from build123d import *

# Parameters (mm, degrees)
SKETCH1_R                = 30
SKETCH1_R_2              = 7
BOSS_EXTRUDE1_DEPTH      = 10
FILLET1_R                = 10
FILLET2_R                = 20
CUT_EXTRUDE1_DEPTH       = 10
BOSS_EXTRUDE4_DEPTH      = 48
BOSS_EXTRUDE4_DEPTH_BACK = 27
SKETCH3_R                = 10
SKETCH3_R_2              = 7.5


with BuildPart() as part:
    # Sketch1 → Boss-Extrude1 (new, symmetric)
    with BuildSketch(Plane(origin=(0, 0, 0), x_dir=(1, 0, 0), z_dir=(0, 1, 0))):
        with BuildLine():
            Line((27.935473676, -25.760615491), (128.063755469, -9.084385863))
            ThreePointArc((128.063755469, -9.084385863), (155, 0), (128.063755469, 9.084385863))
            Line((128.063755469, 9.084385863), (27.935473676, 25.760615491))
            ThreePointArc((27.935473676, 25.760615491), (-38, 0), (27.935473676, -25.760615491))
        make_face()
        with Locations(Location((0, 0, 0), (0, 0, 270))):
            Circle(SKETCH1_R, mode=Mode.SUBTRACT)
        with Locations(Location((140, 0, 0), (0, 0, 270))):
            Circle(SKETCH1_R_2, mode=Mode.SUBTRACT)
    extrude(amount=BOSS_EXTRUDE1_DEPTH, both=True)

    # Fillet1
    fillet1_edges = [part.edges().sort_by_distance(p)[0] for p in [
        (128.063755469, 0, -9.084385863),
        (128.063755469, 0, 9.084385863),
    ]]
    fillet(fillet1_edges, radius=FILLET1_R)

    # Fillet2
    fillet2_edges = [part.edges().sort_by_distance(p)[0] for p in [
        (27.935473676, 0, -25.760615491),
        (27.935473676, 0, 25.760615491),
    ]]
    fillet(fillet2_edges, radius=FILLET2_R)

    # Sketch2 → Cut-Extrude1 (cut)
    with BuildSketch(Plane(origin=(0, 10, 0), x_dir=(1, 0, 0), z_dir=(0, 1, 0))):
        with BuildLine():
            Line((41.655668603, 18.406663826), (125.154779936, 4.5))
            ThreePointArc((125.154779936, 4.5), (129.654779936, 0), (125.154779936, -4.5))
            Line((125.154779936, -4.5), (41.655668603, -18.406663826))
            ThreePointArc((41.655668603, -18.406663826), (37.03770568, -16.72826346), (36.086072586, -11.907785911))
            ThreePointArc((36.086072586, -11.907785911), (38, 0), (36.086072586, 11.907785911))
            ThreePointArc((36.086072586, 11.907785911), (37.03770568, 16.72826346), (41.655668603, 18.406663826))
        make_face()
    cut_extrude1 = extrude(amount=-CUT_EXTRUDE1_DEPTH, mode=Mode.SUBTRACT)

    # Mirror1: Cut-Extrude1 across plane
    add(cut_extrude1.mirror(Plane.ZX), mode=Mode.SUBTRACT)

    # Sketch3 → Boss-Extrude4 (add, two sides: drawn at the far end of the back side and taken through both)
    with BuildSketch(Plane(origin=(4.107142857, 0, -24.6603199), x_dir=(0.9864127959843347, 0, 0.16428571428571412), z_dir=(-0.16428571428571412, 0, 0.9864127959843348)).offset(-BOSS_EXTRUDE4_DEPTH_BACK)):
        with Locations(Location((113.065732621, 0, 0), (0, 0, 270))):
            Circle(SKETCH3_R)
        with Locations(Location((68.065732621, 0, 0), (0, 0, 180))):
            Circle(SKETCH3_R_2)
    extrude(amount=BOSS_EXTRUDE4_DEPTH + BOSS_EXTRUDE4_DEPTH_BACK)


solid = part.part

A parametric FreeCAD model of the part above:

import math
import FreeCAD as App
import Part
import Sketcher

V = App.Vector
Q = App.Units.Quantity


def edges_at(feature, points):
    """Names of the edges that pass closest to the given points."""
    edges = feature.Shape.Edges
    near = lambda p: min(range(len(edges)), key=lambda i: edges[i].distToShape(Part.Vertex(*p))[0])
    return sorted({f"Edge{near(p) + 1}" for p in points})

doc = App.newDocument("Part")
body = doc.addObject("PartDesign::Body", "Body")

sketch1 = doc.addObject("Sketcher::SketchObject", "Sketch")
body.addObject(sketch1)
sketch1.AttachmentSupport = (doc.XZ_Plane, [""])
sketch1.MapMode = "FlatFace"
sketch1.addGeometry([
    Part.LineSegment(V(28, 26, 0), V(128, 9, 0)),
    Part.ArcOfCircle(Part.Circle(V(140, 0, 0), V(0, 0, 1), 15), math.radians(-143), math.radians(143)),
    Part.LineSegment(V(128, -9, 0), V(28, -26, 0)),
    Part.ArcOfCircle(Part.Circle(V(0, 0, 0), V(0, 0, 1), 38), math.radians(43), math.radians(317)),
    Part.Circle(V(0, 0, 0), V(0, 0, 1), 30),
    Part.Circle(V(140, 0, 0), V(0, 0, 1), 7),
], False)
sketch1.addConstraint([
    Sketcher.Constraint("Coincident", 0, 2, 1, 2),
    Sketcher.Constraint("Coincident", 1, 1, 2, 1),
    Sketcher.Constraint("Coincident", 2, 2, 3, 2),
    Sketcher.Constraint("Coincident", 3, 1, 0, 1),
    Sketcher.Constraint("Coincident", 3, 3, -1, 1),
    Sketcher.Constraint("Coincident", 4, 3, -1, 1),
    Sketcher.Constraint("Coincident", 5, 3, 1, 3),
    Sketcher.Constraint("Symmetric", 0, 2, 1, 1, -1),
    Sketcher.Constraint("Vertical", 2, 2, 3, 1),
    Sketcher.Constraint("Diameter", 4, Q("60 mm")),
    Sketcher.Constraint("Diameter", 5, Q("14 mm")),
    Sketcher.Constraint("Radius", 1, Q("15 mm")),
    Sketcher.Constraint("Radius", 3, Q("38 mm")),
    Sketcher.Constraint("DistanceX", -1, 1, 1, 3, Q("140 mm")),
    Sketcher.Constraint("DistanceY", 2, 2, 0, 2, Q("34.845001 mm")),
    Sketcher.Constraint("DistanceY", 1, 1, 0, 2, Q("18.168772 mm")),
])
pad1 = doc.addObject("PartDesign::Pad", "Pad")
body.addObject(pad1)
pad1.Profile = sketch1
pad1.Length = 20
pad1.Midplane = True
doc.recompute()

fillet = doc.addObject("PartDesign::Fillet", "Fillet")
body.addObject(fillet)
fillet.Base = (pad1, edges_at(pad1, [(128.064, 0, -9.084), (128.064, 0, 9.084)]))
fillet.Radius = 10
doc.recompute()

fillet2 = doc.addObject("PartDesign::Fillet", "Fillet001")
body.addObject(fillet2)
fillet2.Base = (fillet, edges_at(fillet, [(27.935, 0, -25.761), (27.935, 0, 25.761)]))
fillet2.Radius = 20

sketch2 = doc.addObject("Sketcher::SketchObject", "Sketch001")
body.addObject(sketch2)
sketch2.AttachmentSupport = (doc.XZ_Plane, [""])
sketch2.MapMode = "FlatFace"
sketch2.AttachmentOffset = App.Placement(V(0, 0, -10), App.Rotation())
sketch2.addGeometry([
    Part.LineSegment(V(125.2, -4.5, 0), V(41.7, -18.4, 0)),
    Part.ArcOfCircle(Part.Circle(V(40.8, -13.5, 0), V(0, 0, 1), 5), math.radians(162), math.radians(279)),
    Part.ArcOfCircle(Part.Circle(V(0, 0, 0), V(0, 0, 1), 38), math.radians(-18), math.radians(18)),
    Part.ArcOfCircle(Part.Circle(V(40.8, 13.5, 0), V(0, 0, 1), 5), math.radians(81), math.radians(198)),
    Part.LineSegment(V(41.7, 18.4, 0), V(125.2, 4.5, 0)),
    Part.ArcOfCircle(Part.Circle(V(125.2, 0, 0), V(0, 0, 1), 4.5), math.radians(-90), math.radians(90)),
], False)
sketch2.addConstraint([
    Sketcher.Constraint("Tangent", 0, 2, 1, 2),
    Sketcher.Constraint("Tangent", 1, 1, 2, 1),
    Sketcher.Constraint("Tangent", 2, 2, 3, 2),
    Sketcher.Constraint("Tangent", 3, 1, 4, 1),
    Sketcher.Constraint("Coincident", 4, 2, 5, 2),
    Sketcher.Constraint("Coincident", 5, 1, 0, 1),
    Sketcher.Constraint("Coincident", 2, 3, -1, 1),
    Sketcher.Constraint("Equal", 1, 3),
    Sketcher.Constraint("Symmetric", 0, 2, 3, 1, -1),
    Sketcher.Constraint("PointOnObject", 5, 3, -1),
    Sketcher.Constraint("Vertical", 5, 3, 4, 2),
    Sketcher.Constraint("Radius", 1, Q("5 mm")),
    Sketcher.Constraint("Radius", 2, Q("38 mm")),
    Sketcher.Constraint("Radius", 5, Q("4.5 mm")),
    Sketcher.Constraint("DistanceY", 1, 3, -1, 1, Q("13.4746 mm")),
    Sketcher.Constraint("Distance", 0, Q("84.649258 mm")),
])
pocket1 = doc.addObject("PartDesign::Pocket", "Pocket")
body.addObject(pocket1)
pocket1.Profile = sketch2
pocket1.Length = 10
pocket1.Reversed = True
doc.recompute()

mirrored = doc.addObject("PartDesign::Mirrored", "Mirrored")
body.addObject(mirrored)
mirrored.Originals = [pocket1]
mirrored.MirrorPlane = (doc.XZ_Plane, [""])
body.Tip = mirrored

sketch3 = doc.addObject("Sketcher::SketchObject", "Sketch002")
body.addObject(sketch3)
sketch3.Placement = App.Placement(V(4.107143, 0, -24.66032), App.Rotation(V(0.986412796, 0, 0.164285714), V(0, 1, 0), V(-0.164285714, 0, 0.986412796), "ZXY"))
sketch3.addGeometry([
    Part.Circle(V(113, 0, 0), V(0, 0, 1), 10),
    Part.Circle(V(68, 0, 0), V(0, 0, 1), 8),
], False)
sketch3.addConstraint([
    Sketcher.Constraint("PointOnObject", 0, 3, -1),
    Sketcher.Constraint("PointOnObject", 1, 3, -1),
    Sketcher.Constraint("Diameter", 0, Q("20 mm")),
    Sketcher.Constraint("Diameter", 1, Q("15 mm")),
    Sketcher.Constraint("DistanceX", 1, 3, 0, 3, Q("45 mm")),
    Sketcher.Constraint("DistanceX", -1, 1, 0, 3, Q("113.065733 mm")),
])
pad2 = doc.addObject("PartDesign::Pad", "Pad001")
body.addObject(pad2)
pad2.Profile = sketch3
pad2.Type = "TwoLengths"
pad2.Length = 48
pad2.Length2 = 27

doc.recompute()
